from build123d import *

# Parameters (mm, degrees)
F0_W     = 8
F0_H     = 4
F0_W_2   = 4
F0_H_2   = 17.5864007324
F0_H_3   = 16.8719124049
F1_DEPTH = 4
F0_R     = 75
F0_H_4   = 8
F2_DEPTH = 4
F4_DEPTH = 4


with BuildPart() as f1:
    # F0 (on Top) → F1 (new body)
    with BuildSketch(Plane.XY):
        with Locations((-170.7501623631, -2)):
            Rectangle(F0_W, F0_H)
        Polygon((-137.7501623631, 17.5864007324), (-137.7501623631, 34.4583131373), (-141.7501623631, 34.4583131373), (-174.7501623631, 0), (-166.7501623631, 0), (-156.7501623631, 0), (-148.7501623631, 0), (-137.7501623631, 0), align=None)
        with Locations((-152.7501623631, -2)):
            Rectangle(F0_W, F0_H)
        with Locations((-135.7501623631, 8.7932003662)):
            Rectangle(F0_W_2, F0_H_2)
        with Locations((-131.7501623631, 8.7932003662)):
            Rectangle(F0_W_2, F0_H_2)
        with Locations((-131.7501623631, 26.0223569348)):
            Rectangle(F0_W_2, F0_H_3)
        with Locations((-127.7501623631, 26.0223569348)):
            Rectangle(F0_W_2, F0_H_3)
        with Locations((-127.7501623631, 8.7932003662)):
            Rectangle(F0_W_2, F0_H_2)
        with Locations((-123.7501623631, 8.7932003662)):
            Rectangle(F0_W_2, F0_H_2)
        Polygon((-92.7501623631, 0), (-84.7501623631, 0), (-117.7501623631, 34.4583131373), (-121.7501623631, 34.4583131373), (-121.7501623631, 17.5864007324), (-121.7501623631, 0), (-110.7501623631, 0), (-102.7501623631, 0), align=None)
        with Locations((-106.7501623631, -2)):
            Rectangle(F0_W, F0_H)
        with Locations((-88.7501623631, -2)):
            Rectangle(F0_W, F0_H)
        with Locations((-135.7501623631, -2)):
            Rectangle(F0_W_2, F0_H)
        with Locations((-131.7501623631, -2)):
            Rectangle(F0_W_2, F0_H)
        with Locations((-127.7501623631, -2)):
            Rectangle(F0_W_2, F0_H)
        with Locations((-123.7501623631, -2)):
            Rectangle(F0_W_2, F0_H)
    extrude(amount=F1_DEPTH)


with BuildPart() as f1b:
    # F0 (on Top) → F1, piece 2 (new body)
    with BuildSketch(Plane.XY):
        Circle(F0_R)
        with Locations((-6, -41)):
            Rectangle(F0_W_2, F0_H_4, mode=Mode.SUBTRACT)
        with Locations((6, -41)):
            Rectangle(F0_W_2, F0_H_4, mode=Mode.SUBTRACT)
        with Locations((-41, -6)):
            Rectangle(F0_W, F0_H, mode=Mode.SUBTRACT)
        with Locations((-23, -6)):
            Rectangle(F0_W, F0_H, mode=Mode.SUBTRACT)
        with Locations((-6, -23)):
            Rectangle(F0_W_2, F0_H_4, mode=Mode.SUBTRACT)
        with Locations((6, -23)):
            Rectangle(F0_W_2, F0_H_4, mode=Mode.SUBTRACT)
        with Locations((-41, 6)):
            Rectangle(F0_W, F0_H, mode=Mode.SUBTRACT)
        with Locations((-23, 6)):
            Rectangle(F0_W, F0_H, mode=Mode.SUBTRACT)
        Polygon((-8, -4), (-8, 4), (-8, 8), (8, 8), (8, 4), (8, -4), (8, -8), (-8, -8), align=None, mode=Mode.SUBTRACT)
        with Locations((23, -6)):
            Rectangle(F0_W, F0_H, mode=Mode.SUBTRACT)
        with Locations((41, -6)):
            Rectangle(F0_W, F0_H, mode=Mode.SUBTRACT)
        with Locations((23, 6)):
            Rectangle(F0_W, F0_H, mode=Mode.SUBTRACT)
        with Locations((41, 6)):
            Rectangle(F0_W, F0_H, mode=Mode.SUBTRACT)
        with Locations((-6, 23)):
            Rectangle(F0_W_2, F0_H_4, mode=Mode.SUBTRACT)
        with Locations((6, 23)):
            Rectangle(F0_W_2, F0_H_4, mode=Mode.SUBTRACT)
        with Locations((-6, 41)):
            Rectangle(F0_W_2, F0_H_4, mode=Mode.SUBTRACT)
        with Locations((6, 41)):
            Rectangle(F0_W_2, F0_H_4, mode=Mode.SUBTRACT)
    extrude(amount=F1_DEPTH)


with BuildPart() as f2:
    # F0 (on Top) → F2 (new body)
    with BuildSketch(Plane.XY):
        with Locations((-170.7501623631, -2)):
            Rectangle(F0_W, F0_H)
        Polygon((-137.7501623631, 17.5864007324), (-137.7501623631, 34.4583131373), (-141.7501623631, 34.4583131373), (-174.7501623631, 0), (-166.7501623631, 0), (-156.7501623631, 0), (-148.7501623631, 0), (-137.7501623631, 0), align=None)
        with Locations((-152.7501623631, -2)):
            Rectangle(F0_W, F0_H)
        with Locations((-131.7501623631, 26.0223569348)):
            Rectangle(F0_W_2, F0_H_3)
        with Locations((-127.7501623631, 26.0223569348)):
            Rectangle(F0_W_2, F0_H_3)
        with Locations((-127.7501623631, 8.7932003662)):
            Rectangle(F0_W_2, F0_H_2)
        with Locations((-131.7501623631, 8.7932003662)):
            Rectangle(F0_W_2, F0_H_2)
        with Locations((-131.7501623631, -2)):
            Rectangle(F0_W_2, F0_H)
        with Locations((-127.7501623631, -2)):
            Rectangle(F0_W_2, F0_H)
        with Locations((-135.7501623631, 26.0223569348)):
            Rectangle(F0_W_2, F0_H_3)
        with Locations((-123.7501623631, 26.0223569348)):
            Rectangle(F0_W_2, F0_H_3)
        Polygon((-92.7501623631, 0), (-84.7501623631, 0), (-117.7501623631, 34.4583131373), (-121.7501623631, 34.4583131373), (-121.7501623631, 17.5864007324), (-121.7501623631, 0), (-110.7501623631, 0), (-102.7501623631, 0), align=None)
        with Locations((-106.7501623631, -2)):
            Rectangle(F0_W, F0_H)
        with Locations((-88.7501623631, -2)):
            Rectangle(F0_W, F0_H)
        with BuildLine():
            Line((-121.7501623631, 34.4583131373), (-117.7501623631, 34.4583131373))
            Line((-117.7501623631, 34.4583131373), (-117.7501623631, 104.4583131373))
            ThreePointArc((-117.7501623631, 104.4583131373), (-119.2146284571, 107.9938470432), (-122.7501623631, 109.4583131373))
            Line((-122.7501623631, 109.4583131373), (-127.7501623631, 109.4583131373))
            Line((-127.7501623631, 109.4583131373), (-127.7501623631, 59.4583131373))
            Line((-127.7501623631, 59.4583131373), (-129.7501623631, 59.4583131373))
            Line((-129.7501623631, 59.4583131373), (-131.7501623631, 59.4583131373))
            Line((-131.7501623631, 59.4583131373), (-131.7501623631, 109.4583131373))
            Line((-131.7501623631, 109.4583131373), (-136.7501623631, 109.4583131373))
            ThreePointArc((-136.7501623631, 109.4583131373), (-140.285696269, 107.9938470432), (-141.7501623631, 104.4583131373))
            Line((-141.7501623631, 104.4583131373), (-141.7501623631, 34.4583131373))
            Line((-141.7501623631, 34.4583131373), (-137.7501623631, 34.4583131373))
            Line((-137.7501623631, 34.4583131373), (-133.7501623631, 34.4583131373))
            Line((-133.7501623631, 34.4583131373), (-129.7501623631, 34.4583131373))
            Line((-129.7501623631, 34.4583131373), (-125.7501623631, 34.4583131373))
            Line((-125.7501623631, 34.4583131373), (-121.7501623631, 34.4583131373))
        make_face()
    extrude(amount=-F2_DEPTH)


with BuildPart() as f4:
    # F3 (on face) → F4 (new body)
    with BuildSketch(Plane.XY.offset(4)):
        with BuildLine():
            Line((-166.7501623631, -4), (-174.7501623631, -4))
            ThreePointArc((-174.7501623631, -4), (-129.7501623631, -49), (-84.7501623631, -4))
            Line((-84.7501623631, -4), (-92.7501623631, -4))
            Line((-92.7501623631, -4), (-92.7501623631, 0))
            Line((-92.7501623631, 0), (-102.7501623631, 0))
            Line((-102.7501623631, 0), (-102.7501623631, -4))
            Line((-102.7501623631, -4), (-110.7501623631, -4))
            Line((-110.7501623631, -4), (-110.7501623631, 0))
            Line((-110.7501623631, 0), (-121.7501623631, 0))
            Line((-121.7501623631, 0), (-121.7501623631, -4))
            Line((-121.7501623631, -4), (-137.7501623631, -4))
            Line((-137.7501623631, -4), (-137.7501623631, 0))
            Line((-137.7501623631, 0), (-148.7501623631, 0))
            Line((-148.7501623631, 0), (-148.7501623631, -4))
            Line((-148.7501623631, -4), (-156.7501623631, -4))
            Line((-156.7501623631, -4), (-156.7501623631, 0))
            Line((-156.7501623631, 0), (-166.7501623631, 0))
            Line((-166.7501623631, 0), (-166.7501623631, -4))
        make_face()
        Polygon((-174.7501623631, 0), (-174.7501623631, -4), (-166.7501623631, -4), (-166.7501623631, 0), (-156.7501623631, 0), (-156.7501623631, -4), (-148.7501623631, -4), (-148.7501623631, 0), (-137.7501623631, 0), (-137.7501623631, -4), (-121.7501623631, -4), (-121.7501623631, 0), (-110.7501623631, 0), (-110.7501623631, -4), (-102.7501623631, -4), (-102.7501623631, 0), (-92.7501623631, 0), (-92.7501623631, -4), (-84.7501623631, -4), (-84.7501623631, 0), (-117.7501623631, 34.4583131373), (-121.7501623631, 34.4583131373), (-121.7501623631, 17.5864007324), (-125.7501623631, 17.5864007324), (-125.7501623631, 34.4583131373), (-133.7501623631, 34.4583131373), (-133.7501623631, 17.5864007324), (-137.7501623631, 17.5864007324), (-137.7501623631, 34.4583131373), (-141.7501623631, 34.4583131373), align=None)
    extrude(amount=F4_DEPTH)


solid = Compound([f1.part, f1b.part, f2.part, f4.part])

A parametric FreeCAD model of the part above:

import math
import FreeCAD as App
import Part
import Sketcher

V = App.Vector

doc = App.newDocument("Part")
body = doc.addObject("PartDesign::Body", "Body")

# Sketch on XY plane
sketch1 = body.newObject("Sketcher::SketchObject", "Sketch")
sketch1.AttachmentSupport = (doc.getObject("XY_Plane"), [""])
sketch1.MapMode = "FlatFace"
sketch1.addGeometry([
    Part.LineSegment(V(-174.8, 0, 0), V(-174.8, -4, 0)),  # 0
    Part.LineSegment(V(-174.8, -4, 0), V(-166.8, -4, 0)),  # 1
    Part.LineSegment(V(-166.8, -4, 0), V(-166.8, 0, 0)),  # 2
    Part.LineSegment(V(-166.8, 0, 0), V(-156.8, 0, 0)),  # 3
    Part.LineSegment(V(-156.8, 0, 0), V(-156.8, -4, 0)),  # 4
    Part.LineSegment(V(-156.8, -4, 0), V(-148.8, -4, 0)),  # 5
    Part.LineSegment(V(-148.8, -4, 0), V(-148.8, 0, 0)),  # 6
    Part.LineSegment(V(-148.8, 0, 0), V(-137.8, 0, 0)),  # 7
    Part.LineSegment(V(-137.8, 0, 0), V(-137.8, -4, 0)),  # 8
    Part.LineSegment(V(-137.8, -4, 0), V(-121.8, -4, 0)),  # 9
    Part.LineSegment(V(-121.8, -4, 0), V(-121.8, 0, 0)),  # 10
    Part.LineSegment(V(-121.8, 0, 0), V(-110.8, 0, 0)),  # 11
    Part.LineSegment(V(-110.8, 0, 0), V(-110.8, -4, 0)),  # 12
    Part.LineSegment(V(-110.8, -4, 0), V(-102.8, -4, 0)),  # 13
    Part.LineSegment(V(-102.8, -4, 0), V(-102.8, 0, 0)),  # 14
    Part.LineSegment(V(-102.8, 0, 0), V(-92.8, 0, 0)),  # 15
    Part.LineSegment(V(-92.8, 0, 0), V(-92.8, -4, 0)),  # 16
    Part.LineSegment(V(-92.8, -4, 0), V(-84.8, -4, 0)),  # 17
    Part.LineSegment(V(-84.8, -4, 0), V(-84.8, 0, 0)),  # 18
    Part.LineSegment(V(-84.8, 0, 0), V(-117.8, 34.5, 0)),  # 19
    Part.LineSegment(V(-117.8, 34.5, 0), V(-121.8, 34.5, 0)),  # 20
    Part.LineSegment(V(-121.8, 34.5, 0), V(-121.8, 17.6, 0)),  # 21
    Part.LineSegment(V(-121.8, 17.6, 0), V(-125.8, 17.6, 0)),  # 22
    Part.LineSegment(V(-125.8, 17.6, 0), V(-125.8, 34.5, 0)),  # 23
    Part.LineSegment(V(-125.8, 34.5, 0), V(-133.8, 34.5, 0)),  # 24
    Part.LineSegment(V(-133.8, 34.5, 0), V(-133.8, 17.6, 0)),  # 25
    Part.LineSegment(V(-133.8, 17.6, 0), V(-137.8, 17.6, 0)),  # 26
    Part.LineSegment(V(-137.8, 17.6, 0), V(-137.8, 34.5, 0)),  # 27
    Part.LineSegment(V(-137.8, 34.5, 0), V(-141.8, 34.5, 0)),  # 28
    Part.LineSegment(V(-141.8, 34.5, 0), V(-174.8, 0, 0)),  # 29
], False)
sketch1.addConstraint([
    Sketcher.Constraint("Coincident", 0, 2, 1, 1),
    Sketcher.Constraint("Coincident", 1, 2, 2, 1),
    Sketcher.Constraint("Coincident", 2, 2, 3, 1),
    Sketcher.Constraint("Coincident", 3, 2, 4, 1),
    Sketcher.Constraint("Coincident", 4, 2, 5, 1),
    Sketcher.Constraint("Coincident", 5, 2, 6, 1),
    Sketcher.Constraint("Coincident", 6, 2, 7, 1),
    Sketcher.Constraint("Coincident", 7, 2, 8, 1),
    Sketcher.Constraint("Coincident", 8, 2, 9, 1),
    Sketcher.Constraint("Coincident", 9, 2, 10, 1),
    Sketcher.Constraint("Coincident", 10, 2, 11, 1),
    Sketcher.Constraint("Coincident", 11, 2, 12, 1),
    Sketcher.Constraint("Coincident", 12, 2, 13, 1),
    Sketcher.Constraint("Coincident", 13, 2, 14, 1),
    Sketcher.Constraint("Coincident", 14, 2, 15, 1),
    Sketcher.Constraint("Coincident", 15, 2, 16, 1),
    Sketcher.Constraint("Coincident", 16, 2, 17, 1),
    Sketcher.Constraint("Coincident", 17, 2, 18, 1),
    Sketcher.Constraint("Coincident", 18, 2, 19, 1),
    Sketcher.Constraint("Coincident", 19, 2, 20, 1),
    Sketcher.Constraint("Coincident", 20, 2, 21, 1),
    Sketcher.Constraint("Coincident", 21, 2, 22, 1),
    Sketcher.Constraint("Coincident", 22, 2, 23, 1),
    Sketcher.Constraint("Coincident", 23, 2, 24, 1),
    Sketcher.Constraint("Coincident", 24, 2, 25, 1),
    Sketcher.Constraint("Coincident", 25, 2, 26, 1),
    Sketcher.Constraint("Coincident", 26, 2, 27, 1),
    Sketcher.Constraint("Coincident", 27, 2, 28, 1),
    Sketcher.Constraint("Coincident", 28, 2, 29, 1),
    Sketcher.Constraint("Coincident", 29, 2, 0, 1),
    Sketcher.Constraint("Vertical", 0),
    Sketcher.Constraint("Horizontal", 1),
    Sketcher.Constraint("Vertical", 2),
    Sketcher.Constraint("Horizontal", 3),
    Sketcher.Constraint("Vertical", 4),
    Sketcher.Constraint("Horizontal", 5),
    Sketcher.Constraint("Vertical", 6),
    Sketcher.Constraint("Horizontal", 7),
    Sketcher.Constraint("Vertical", 8),
    Sketcher.Constraint("Horizontal", 9),
    Sketcher.Constraint("Vertical", 10),
    Sketcher.Constraint("Horizontal", 11),
    Sketcher.Constraint("Vertical", 12),
    Sketcher.Constraint("Horizontal", 13),
    Sketcher.Constraint("Vertical", 14),
    Sketcher.Constraint("Horizontal", 15),
    Sketcher.Constraint("Vertical", 16),
    Sketcher.Constraint("Horizontal", 17),
    Sketcher.Constraint("Vertical", 18),
    Sketcher.Constraint("Horizontal", 20),
    Sketcher.Constraint("Vertical", 21),
    Sketcher.Constraint("Horizontal", 22),
    Sketcher.Constraint("Vertical", 23),
    Sketcher.Constraint("Horizontal", 24),
    Sketcher.Constraint("Vertical", 25),
    Sketcher.Constraint("Horizontal", 26),
    Sketcher.Constraint("Vertical", 27),
    Sketcher.Constraint("Horizontal", 28),
    Sketcher.Constraint("PointOnObject", 2, 2, -1),
    Sketcher.Constraint("PointOnObject", 6, 2, -1),
    Sketcher.Constraint("PointOnObject", 10, 2, -1),
    Sketcher.Constraint("PointOnObject", 14, 2, -1),
    Sketcher.Constraint("PointOnObject", 18, 2, -1),
    Sketcher.Constraint("PointOnObject", 29, 2, -1),
    Sketcher.Constraint("Horizontal", 1, 2, 4, 2),
    Sketcher.Constraint("Horizontal", 5, 2, 8, 2),
    Sketcher.Constraint("Horizontal", 9, 2, 12, 2),
    Sketcher.Constraint("Horizontal", 13, 2, 16, 2),
    Sketcher.Constraint("Horizontal", 20, 2, 23, 2),
    Sketcher.Constraint("Horizontal", 22, 2, 25, 2),
    Sketcher.Constraint("Horizontal", 24, 2, 27, 2),
    Sketcher.Constraint("Vertical", 10, 2, 20, 2),
    Sketcher.Constraint("Vertical", 8, 2, 26, 2),
    Sketcher.Constraint("Equal", 1, 5),
    Sketcher.Constraint("Equal", 7, 11),
    Sketcher.Constraint("Equal", 5, 13),
    Sketcher.Constraint("Equal", 3, 15),
    Sketcher.Constraint("Equal", 13, 17),
    Sketcher.Constraint("Equal", 20, 22),
    Sketcher.Constraint("Equal", 17, 24),
    Sketcher.Constraint("Equal", 22, 26),
    Sketcher.Constraint("Equal", 26, 28),
    Sketcher.Constraint("Equal", 28, 0),
    Sketcher.Constraint("DistanceX", 1, 1, 1, 2, 8.0),
    Sketcher.Constraint("DistanceX", 3, 1, 3, 2, 10.0),
    Sketcher.Constraint("DistanceX", 7, 1, 7, 2, 11.0),
    Sketcher.Constraint("DistanceX", 9, 1, 9, 2, 16.0),
    Sketcher.Constraint("DistanceY", -1, 1, 21, 2, 17.586401),
    Sketcher.Constraint("DistanceY", 21, 2, 21, 1, 16.871912),
    Sketcher.Constraint("DistanceX", 0, 2, -1, 1, 174.750162),
])
pad1 = body.newObject("PartDesign::Pad", "Pad")
pad1.Profile = sketch1
pad1.Length = 4
body2 = doc.addObject("PartDesign::Body", "Body001")

# Sketch on XY plane
sketch2 = body2.newObject("Sketcher::SketchObject", "Sketch001")
sketch2.AttachmentSupport = (doc.getObject("XY_Plane001"), [""])
sketch2.MapMode = "FlatFace"
sketch2.addGeometry([
    Part.Circle(V(0, 0, 0), V(0, 0, 1), 75),  # 0
    Part.LineSegment(V(-4, -45, 0), V(-8, -45, 0)),  # 1
    Part.LineSegment(V(-8, -45, 0), V(-8, -37, 0)),  # 2
    Part.LineSegment(V(-8, -37, 0), V(-4, -37, 0)),  # 3
    Part.LineSegment(V(-4, -37, 0), V(-4, -45, 0)),  # 4
    Part.LineSegment(V(-4, -27, 0), V(-8, -27, 0)),  # 5
    Part.LineSegment(V(-8, -27, 0), V(-8, -19, 0)),  # 6
    Part.LineSegment(V(-8, -19, 0), V(-4, -19, 0)),  # 7
    Part.LineSegment(V(-4, -19, 0), V(-4, -27, 0)),  # 8
    Part.LineSegment(V(-37, -8, 0), V(-45, -8, 0)),  # 9
    Part.LineSegment(V(-45, -8, 0), V(-45, -4, 0)),  # 10
    Part.LineSegment(V(-45, -4, 0), V(-37, -4, 0)),  # 11
    Part.LineSegment(V(-37, -4, 0), V(-37, -8, 0)),  # 12
    Part.LineSegment(V(-19, -8, 0), V(-27, -8, 0)),  # 13
    Part.LineSegment(V(-27, -8, 0), V(-27, -4, 0)),  # 14
    Part.LineSegment(V(-27, -4, 0), V(-19, -4, 0)),  # 15
    Part.LineSegment(V(-19, -4, 0), V(-19, -8, 0)),  # 16
    Part.LineSegment(V(8, -45, 0), V(4, -45, 0)),  # 17
    Part.LineSegment(V(4, -45, 0), V(4, -37, 0)),  # 18
    Part.LineSegment(V(4, -37, 0), V(8, -37, 0)),  # 19
    Part.LineSegment(V(8, -37, 0), V(8, -45, 0)),  # 20
    Part.LineSegment(V(8, -27, 0), V(4, -27, 0)),  # 21
    Part.LineSegment(V(4, -27, 0), V(4, -19, 0)),  # 22
    Part.LineSegment(V(4, -19, 0), V(8, -19, 0)),  # 23
    Part.LineSegment(V(8, -19, 0), V(8, -27, 0)),  # 24
    Part.LineSegment(V(27, -8, 0), V(19, -8, 0)),  # 25
    Part.LineSegment(V(19, -8, 0), V(19, -4, 0)),  # 26
    Part.LineSegment(V(19, -4, 0), V(27, -4, 0)),  # 27
    Part.LineSegment(V(27, -4, 0), V(27, -8, 0)),  # 28
    Part.LineSegment(V(45, -8, 0), V(37, -8, 0)),  # 29
    Part.LineSegment(V(37, -8, 0), V(37, -4, 0)),  # 30
    Part.LineSegment(V(37, -4, 0), V(45, -4, 0)),  # 31
    Part.LineSegment(V(45, -4, 0), V(45, -8, 0)),  # 32
    Part.LineSegment(V(-37, 4, 0), V(-45, 4, 0)),  # 33
    Part.LineSegment(V(-45, 4, 0), V(-45, 8, 0)),  # 34
    Part.LineSegment(V(-45, 8, 0), V(-37, 8, 0)),  # 35
    Part.LineSegment(V(-37, 8, 0), V(-37, 4, 0)),  # 36
    Part.LineSegment(V(-19, 4, 0), V(-27, 4, 0)),  # 37
    Part.LineSegment(V(-27, 4, 0), V(-27, 8, 0)),  # 38
    Part.LineSegment(V(-27, 8, 0), V(-19, 8, 0)),  # 39
    Part.LineSegment(V(-19, 8, 0), V(-19, 4, 0)),  # 40
    Part.LineSegment(V(-4, 19, 0), V(-8, 19, 0)),  # 41
    Part.LineSegment(V(-8, 19, 0), V(-8, 27, 0)),  # 42
    Part.LineSegment(V(-8, 27, 0), V(-4, 27, 0)),  # 43
    Part.LineSegment(V(-4, 27, 0), V(-4, 19, 0)),  # 44
    Part.LineSegment(V(-4, 37, 0), V(-8, 37, 0)),  # 45
    Part.LineSegment(V(-8, 37, 0), V(-8, 45, 0)),  # 46
    Part.LineSegment(V(-8, 45, 0), V(-4, 45, 0)),  # 47
    Part.LineSegment(V(-4, 45, 0), V(-4, 37, 0)),  # 48
    Part.LineSegment(V(-8, -8, 0), V(-8, 8, 0)),  # 49
    Part.LineSegment(V(-8, 8, 0), V(8, 8, 0)),  # 50
    Part.LineSegment(V(8, 8, 0), V(8, -8, 0)),  # 51
    Part.LineSegment(V(8, -8, 0), V(-8, -8, 0)),  # 52
    Part.LineSegment(V(27, 4, 0), V(19, 4, 0)),  # 53
    Part.LineSegment(V(19, 4, 0), V(19, 8, 0)),  # 54
    Part.LineSegment(V(19, 8, 0), V(27, 8, 0)),  # 55
    Part.LineSegment(V(27, 8, 0), V(27, 4, 0)),  # 56
    Part.LineSegment(V(45, 4, 0), V(37, 4, 0)),  # 57
    Part.LineSegment(V(37, 4, 0), V(37, 8, 0)),  # 58
    Part.LineSegment(V(37, 8, 0), V(45, 8, 0)),  # 59
    Part.LineSegment(V(45, 8, 0), V(45, 4, 0)),  # 60
    Part.LineSegment(V(8, 19, 0), V(4, 19, 0)),  # 61
    Part.LineSegment(V(4, 19, 0), V(4, 27, 0)),  # 62
    Part.LineSegment(V(4, 27, 0), V(8, 27, 0)),  # 63
    Part.LineSegment(V(8, 27, 0), V(8, 19, 0)),  # 64
    Part.LineSegment(V(8, 37, 0), V(4, 37, 0)),  # 65
    Part.LineSegment(V(4, 37, 0), V(4, 45, 0)),  # 66
    Part.LineSegment(V(4, 45, 0), V(8, 45, 0)),  # 67
    Part.LineSegment(V(8, 45, 0), V(8, 37, 0)),  # 68
], False)
sketch2.addConstraint([
    Sketcher.Constraint("Coincident", 1, 2, 2, 1),
    Sketcher.Constraint("Coincident", 2, 2, 3, 1),
    Sketcher.Constraint("Coincident", 3, 2, 4, 1),
    Sketcher.Constraint("Coincident", 4, 2, 1, 1),
    Sketcher.Constraint("Coincident", 5, 2, 6, 1),
    Sketcher.Constraint("Coincident", 6, 2, 7, 1),
    Sketcher.Constraint("Coincident", 7, 2, 8, 1),
    Sketcher.Constraint("Coincident", 8, 2, 5, 1),
    Sketcher.Constraint("Coincident", 9, 2, 10, 1),
    Sketcher.Constraint("Coincident", 10, 2, 11, 1),
    Sketcher.Constraint("Coincident", 11, 2, 12, 1),
    Sketcher.Constraint("Coincident", 12, 2, 9, 1),
    Sketcher.Constraint("Coincident", 13, 2, 14, 1),
    Sketcher.Constraint("Coincident", 14, 2, 15, 1),
    Sketcher.Constraint("Coincident", 15, 2, 16, 1),
    Sketcher.Constraint("Coincident", 16, 2, 13, 1),
    Sketcher.Constraint("Coincident", 17, 2, 18, 1),
    Sketcher.Constraint("Coincident", 18, 2, 19, 1),
    Sketcher.Constraint("Coincident", 19, 2, 20, 1),
    Sketcher.Constraint("Coincident", 20, 2, 17, 1),
    Sketcher.Constraint("Coincident", 21, 2, 22, 1),
    Sketcher.Constraint("Coincident", 22, 2, 23, 1),
    Sketcher.Constraint("Coincident", 23, 2, 24, 1),
    Sketcher.Constraint("Coincident", 24, 2, 21, 1),
    Sketcher.Constraint("Coincident", 25, 2, 26, 1),
    Sketcher.Constraint("Coincident", 26, 2, 27, 1),
    Sketcher.Constraint("Coincident", 27, 2, 28, 1),
    Sketcher.Constraint("Coincident", 28, 2, 25, 1),
    Sketcher.Constraint("Coincident", 29, 2, 30, 1),
    Sketcher.Constraint("Coincident", 30, 2, 31, 1),
    Sketcher.Constraint("Coincident", 31, 2, 32, 1),
    Sketcher.Constraint("Coincident", 32, 2, 29, 1),
    Sketcher.Constraint("Coincident", 33, 2, 34, 1),
    Sketcher.Constraint("Coincident", 34, 2, 35, 1),
    Sketcher.Constraint("Coincident", 35, 2, 36, 1),
    Sketcher.Constraint("Coincident", 36, 2, 33, 1),
    Sketcher.Constraint("Coincident", 37, 2, 38, 1),
    Sketcher.Constraint("Coincident", 38, 2, 39, 1),
    Sketcher.Constraint("Coincident", 39, 2, 40, 1),
    Sketcher.Constraint("Coincident", 40, 2, 37, 1),
    Sketcher.Constraint("Coincident", 41, 2, 42, 1),
    Sketcher.Constraint("Coincident", 42, 2, 43, 1),
    Sketcher.Constraint("Coincident", 43, 2, 44, 1),
    Sketcher.Constraint("Coincident", 44, 2, 41, 1),
    Sketcher.Constraint("Coincident", 45, 2, 46, 1),
    Sketcher.Constraint("Coincident", 46, 2, 47, 1),
    Sketcher.Constraint("Coincident", 47, 2, 48, 1),
    Sketcher.Constraint("Coincident", 48, 2, 45, 1),
    Sketcher.Constraint("Coincident", 49, 2, 50, 1),
    Sketcher.Constraint("Coincident", 50, 2, 51, 1),
    Sketcher.Constraint("Coincident", 51, 2, 52, 1),
    Sketcher.Constraint("Coincident", 52, 2, 49, 1),
    Sketcher.Constraint("Coincident", 53, 2, 54, 1),
    Sketcher.Constraint("Coincident", 54, 2, 55, 1),
    Sketcher.Constraint("Coincident", 55, 2, 56, 1),
    Sketcher.Constraint("Coincident", 56, 2, 53, 1),
    Sketcher.Constraint("Coincident", 57, 2, 58, 1),
    Sketcher.Constraint("Coincident", 58, 2, 59, 1),
    Sketcher.Constraint("Coincident", 59, 2, 60, 1),
    Sketcher.Constraint("Coincident", 60, 2, 57, 1),
    Sketcher.Constraint("Coincident", 61, 2, 62, 1),
    Sketcher.Constraint("Coincident", 62, 2, 63, 1),
    Sketcher.Constraint("Coincident", 63, 2, 64, 1),
    Sketcher.Constraint("Coincident", 64, 2, 61, 1),
    Sketcher.Constraint("Coincident", 65, 2, 66, 1),
    Sketcher.Constraint("Coincident", 66, 2, 67, 1),
    Sketcher.Constraint("Coincident", 67, 2, 68, 1),
    Sketcher.Constraint("Coincident", 68, 2, 65, 1),
    Sketcher.Constraint("Horizontal", 1),
    Sketcher.Constraint("Vertical", 2),
    Sketcher.Constraint("Horizontal", 3),
    Sketcher.Constraint("Vertical", 4),
    Sketcher.Constraint("Horizontal", 5),
    Sketcher.Constraint("Vertical", 6),
    Sketcher.Constraint("Horizontal", 7),
    Sketcher.Constraint("Vertical", 8),
    Sketcher.Constraint("Horizontal", 9),
    Sketcher.Constraint("Vertical", 10),
    Sketcher.Constraint("Horizontal", 11),
    Sketcher.Constraint("Vertical", 12),
    Sketcher.Constraint("Horizontal", 13),
    Sketcher.Constraint("Vertical", 14),
    Sketcher.Constraint("Horizontal", 15),
    Sketcher.Constraint("Vertical", 16),
    Sketcher.Constraint("Horizontal", 17),
    Sketcher.Constraint("Vertical", 18),
    Sketcher.Constraint("Horizontal", 19),
    Sketcher.Constraint("Vertical", 20),
    Sketcher.Constraint("Horizontal", 21),
    Sketcher.Constraint("Vertical", 22),
    Sketcher.Constraint("Horizontal", 23),
    Sketcher.Constraint("Vertical", 24),
    Sketcher.Constraint("Horizontal", 25),
    Sketcher.Constraint("Vertical", 26),
    Sketcher.Constraint("Horizontal", 27),
    Sketcher.Constraint("Vertical", 28),
    Sketcher.Constraint("Horizontal", 29),
    Sketcher.Constraint("Vertical", 30),
    Sketcher.Constraint("Horizontal", 31),
    Sketcher.Constraint("Vertical", 32),
    Sketcher.Constraint("Horizontal", 33),
    Sketcher.Constraint("Vertical", 34),
    Sketcher.Constraint("Horizontal", 35),
    Sketcher.Constraint("Vertical", 36),
    Sketcher.Constraint("Horizontal", 37),
    Sketcher.Constraint("Vertical", 38),
    Sketcher.Constraint("Horizontal", 39),
    Sketcher.Constraint("Vertical", 40),
    Sketcher.Constraint("Horizontal", 41),
    Sketcher.Constraint("Vertical", 42),
    Sketcher.Constraint("Horizontal", 43),
    Sketcher.Constraint("Vertical", 44),
    Sketcher.Constraint("Horizontal", 45),
    Sketcher.Constraint("Vertical", 46),
    Sketcher.Constraint("Horizontal", 47),
    Sketcher.Constraint("Vertical", 48),
    Sketcher.Constraint("Vertical", 49),
    Sketcher.Constraint("Horizontal", 50),
    Sketcher.Constraint("Vertical", 51),
    Sketcher.Constraint("Horizontal", 52),
    Sketcher.Constraint("Horizontal", 53),
    Sketcher.Constraint("Vertical", 54),
    Sketcher.Constraint("Horizontal", 55),
    Sketcher.Constraint("Vertical", 56),
    Sketcher.Constraint("Horizontal", 57),
    Sketcher.Constraint("Vertical", 58),
    Sketcher.Constraint("Horizontal", 59),
    Sketcher.Constraint("Vertical", 60),
    Sketcher.Constraint("Horizontal", 61),
    Sketcher.Constraint("Vertical", 62),
    Sketcher.Constraint("Horizontal", 63),
    Sketcher.Constraint("Vertical", 64),
    Sketcher.Constraint("Horizontal", 65),
    Sketcher.Constraint("Vertical", 66),
    Sketcher.Constraint("Horizontal", 67),
    Sketcher.Constraint("Vertical", 68),
    Sketcher.Constraint("Coincident", 0, 3, -1, 1),
    Sketcher.Constraint("Symmetric", 31, 2, 33, 2, -1, 1),
    Sketcher.Constraint("Symmetric", 29, 2, 35, 2, -1, 1),
    Sketcher.Constraint("Symmetric", 27, 2, 37, 2, -1, 1),
    Sketcher.Constraint("Symmetric", 25, 2, 39, 2, -1, 1),
    Sketcher.Constraint("Symmetric", 23, 2, 41, 2, -1, 1),
    Sketcher.Constraint("Symmetric", 21, 2, 43, 2, -1, 1),
    Sketcher.Constraint("Symmetric", 19, 2, 45, 2, -1, 1),
    Sketcher.Constraint("Symmetric", 17, 2, 47, 2, -1, 1),
    Sketcher.Constraint("Symmetric", 49, 2, 51, 2, -1, 1),
    Sketcher.Constraint("Symmetric", 15, 2, 53, 2, -1, 1),
    Sketcher.Constraint("Symmetric", 13, 2, 55, 2, -1, 1),
    Sketcher.Constraint("Symmetric", 11, 2, 57, 2, -1, 1),
    Sketcher.Constraint("Symmetric", 9, 2, 59, 2, -1, 1),
    Sketcher.Constraint("Symmetric", 7, 2, 61, 2, -1, 1),
    Sketcher.Constraint("Symmetric", 5, 2, 63, 2, -1, 1),
    Sketcher.Constraint("Symmetric", 3, 2, 65, 2, -1, 1),
    Sketcher.Constraint("Symmetric", 1, 2, 67, 2, -1, 1),
    Sketcher.Constraint("Symmetric", 4, 2, 17, 2, -2),
    Sketcher.Constraint("Symmetric", 2, 2, 19, 2, -2),
    Sketcher.Constraint("Symmetric", 8, 2, 21, 2, -2),
    Sketcher.Constraint("Symmetric", 6, 2, 23, 2, -2),
    Sketcher.Constraint("Symmetric", 16, 2, 25, 2, -2),
    Sketcher.Constraint("Symmetric", 14, 2, 27, 2, -2),
    Sketcher.Constraint("Symmetric", 12, 2, 29, 2, -2),
    Sketcher.Constraint("Symmetric", 10, 2, 31, 2, -2),
    Sketcher.Constraint("Horizontal", 12, 2, 13, 2),
    Sketcher.Constraint("Horizontal", 11, 2, 14, 2),
    Sketcher.Constraint("Horizontal", 39, 2, 49, 2),
    Sketcher.Constraint("Vertical", 2, 2, 5, 2),
    Sketcher.Constraint("Vertical", 4, 2, 7, 2),
    Sketcher.Constraint("Vertical", 46, 2, 49, 2),
    Sketcher.Constraint("Equal", 11, 13),
    Sketcher.Constraint("Equal", 59, 2),
    Sketcher.Constraint("Equal", 4, 6),
    Sketcher.Constraint("Equal", 67, 10),
    Sketcher.Constraint("Equal", 52, 49),
    Sketcher.Constraint("Diameter", 0, 150.0),
    Sketcher.Constraint("DistanceX", 1, 2, 1, 1, 4.0),
    Sketcher.Constraint("DistanceX", 9, 2, 9, 1, 8.0),
    Sketcher.Constraint("DistanceX", 50, 1, 50, 2, 16.0),
    Sketcher.Constraint("DistanceY", 1, 2, -1, 1, 45.0),
    Sketcher.Constraint("DistanceY", 5, 2, -1, 1, 27.0),
    Sketcher.Constraint("DistanceX", 9, 2, -1, 1, 45.0),
    Sketcher.Constraint("DistanceX", 13, 2, -1, 1, 27.0),
])
pad2 = body2.newObject("PartDesign::Pad", "Pad001")
pad2.Profile = sketch2
pad2.Length = 4
body3 = doc.addObject("PartDesign::Body", "Body002")

# Sketch on XY plane
sketch3 = body3.newObject("Sketcher::SketchObject", "Sketch002")
sketch3.AttachmentSupport = (doc.getObject("XY_Plane002"), [""])
sketch3.MapMode = "FlatFace"
sketch3.addGeometry([
    Part.LineSegment(V(-174.8, 0, 0), V(-174.8, -4, 0)),  # 0
    Part.LineSegment(V(-174.8, -4, 0), V(-166.8, -4, 0)),  # 1
    Part.LineSegment(V(-166.8, -4, 0), V(-166.8, 0, 0)),  # 2
    Part.LineSegment(V(-166.8, 0, 0), V(-156.8, 0, 0)),  # 3
    Part.LineSegment(V(-156.8, 0, 0), V(-156.8, -4, 0)),  # 4
    Part.LineSegment(V(-156.8, -4, 0), V(-148.8, -4, 0)),  # 5
    Part.LineSegment(V(-148.8, -4, 0), V(-148.8, 0, 0)),  # 6
    Part.LineSegment(V(-148.8, 0, 0), V(-137.8, 0, 0)),  # 7
    Part.LineSegment(V(-137.8, 0, 0), V(-137.8, 17.6, 0)),  # 8
    Part.LineSegment(V(-137.8, 17.6, 0), V(-133.8, 17.6, 0)),  # 9
    Part.LineSegment(V(-133.8, 17.6, 0), V(-133.8, -4, 0)),  # 10
    Part.LineSegment(V(-133.8, -4, 0), V(-125.8, -4, 0)),  # 11
    Part.LineSegment(V(-125.8, -4, 0), V(-125.8, 17.6, 0)),  # 12
    Part.LineSegment(V(-125.8, 17.6, 0), V(-121.8, 17.6, 0)),  # 13
    Part.LineSegment(V(-121.8, 17.6, 0), V(-121.8, 0, 0)),  # 14
    Part.LineSegment(V(-121.8, 0, 0), V(-110.8, 0, 0)),  # 15
    Part.LineSegment(V(-110.8, 0, 0), V(-110.8, -4, 0)),  # 16
    Part.LineSegment(V(-110.8, -4, 0), V(-102.8, -4, 0)),  # 17
    Part.LineSegment(V(-102.8, -4, 0), V(-102.8, 0, 0)),  # 18
    Part.LineSegment(V(-102.8, 0, 0), V(-92.8, 0, 0)),  # 19
    Part.LineSegment(V(-92.8, 0, 0), V(-92.8, -4, 0)),  # 20
    Part.LineSegment(V(-92.8, -4, 0), V(-84.8, -4, 0)),  # 21
    Part.LineSegment(V(-84.8, -4, 0), V(-84.8, 0, 0)),  # 22
    Part.LineSegment(V(-84.8, 0, 0), V(-117.8, 34.5, 0)),  # 23
    Part.LineSegment(V(-117.8, 34.5, 0), V(-117.8, 104.5, 0)),  # 24
    Part.ArcOfCircle(Part.Circle(V(-122.8, 104.5, 0), V(0, 0, 1), 5), math.radians(0), math.radians(90)),  # 25
    Part.LineSegment(V(-122.8, 109.5, 0), V(-127.8, 109.5, 0)),  # 26
    Part.LineSegment(V(-127.8, 109.5, 0), V(-127.8, 59.5, 0)),  # 27
    Part.LineSegment(V(-127.8, 59.5, 0), V(-131.8, 59.5, 0)),  # 28
    Part.LineSegment(V(-131.8, 59.5, 0), V(-131.8, 109.5, 0)),  # 29
    Part.LineSegment(V(-131.8, 109.5, 0), V(-136.8, 109.5, 0)),  # 30
    Part.ArcOfCircle(Part.Circle(V(-136.8, 104.5, 0), V(0, 0, 1), 5), math.radians(90), math.radians(180)),  # 31
    Part.LineSegment(V(-141.8, 104.5, 0), V(-141.8, 34.5, 0)),  # 32
    Part.LineSegment(V(-141.8, 34.5, 0), V(-174.8, 0, 0)),  # 33
], False)
sketch3.addConstraint([
    Sketcher.Constraint("Coincident", 0, 2, 1, 1),
    Sketcher.Constraint("Coincident", 1, 2, 2, 1),
    Sketcher.Constraint("Coincident", 2, 2, 3, 1),
    Sketcher.Constraint("Coincident", 3, 2, 4, 1),
    Sketcher.Constraint("Coincident", 4, 2, 5, 1),
    Sketcher.Constraint("Coincident", 5, 2, 6, 1),
    Sketcher.Constraint("Coincident", 6, 2, 7, 1),
    Sketcher.Constraint("Coincident", 7, 2, 8, 1),
    Sketcher.Constraint("Coincident", 8, 2, 9, 1),
    Sketcher.Constraint("Coincident", 9, 2, 10, 1),
    Sketcher.Constraint("Coincident", 10, 2, 11, 1),
    Sketcher.Constraint("Coincident", 11, 2, 12, 1),
    Sketcher.Constraint("Coincident", 12, 2, 13, 1),
    Sketcher.Constraint("Coincident", 13, 2, 14, 1),
    Sketcher.Constraint("Coincident", 14, 2, 15, 1),
    Sketcher.Constraint("Coincident", 15, 2, 16, 1),
    Sketcher.Constraint("Coincident", 16, 2, 17, 1),
    Sketcher.Constraint("Coincident", 17, 2, 18, 1),
    Sketcher.Constraint("Coincident", 18, 2, 19, 1),
    Sketcher.Constraint("Coincident", 19, 2, 20, 1),
    Sketcher.Constraint("Coincident", 20, 2, 21, 1),
    Sketcher.Constraint("Coincident", 21, 2, 22, 1),
    Sketcher.Constraint("Coincident", 22, 2, 23, 1),
    Sketcher.Constraint("Coincident", 23, 2, 24, 1),
    Sketcher.Constraint("Tangent", 24, 2, 25, 1),
    Sketcher.Constraint("Tangent", 25, 2, 26, 1),
    Sketcher.Constraint("Coincident", 26, 2, 27, 1),
    Sketcher.Constraint("Coincident", 27, 2, 28, 1),
    Sketcher.Constraint("Coincident", 28, 2, 29, 1),
    Sketcher.Constraint("Coincident", 29, 2, 30, 1),
    Sketcher.Constraint("Tangent", 30, 2, 31, 1),
    Sketcher.Constraint("Tangent", 31, 2, 32, 1),
    Sketcher.Constraint("Coincident", 32, 2, 33, 1),
    Sketcher.Constraint("Coincident", 33, 2, 0, 1),
    Sketcher.Constraint("Vertical", 0),
    Sketcher.Constraint("Horizontal", 1),
    Sketcher.Constraint("Vertical", 2),
    Sketcher.Constraint("Horizontal", 3),
    Sketcher.Constraint("Vertical", 4),
    Sketcher.Constraint("Horizontal", 5),
    Sketcher.Constraint("Vertical", 6),
    Sketcher.Constraint("Horizontal", 7),
    Sketcher.Constraint("Vertical", 8),
    Sketcher.Constraint("Horizontal", 9),
    Sketcher.Constraint("Vertical", 10),
    Sketcher.Constraint("Horizontal", 11),
    Sketcher.Constraint("Vertical", 12),
    Sketcher.Constraint("Horizontal", 13),
    Sketcher.Constraint("Vertical", 14),
    Sketcher.Constraint("Horizontal", 15),
    Sketcher.Constraint("Vertical", 16),
    Sketcher.Constraint("Horizontal", 17),
    Sketcher.Constraint("Vertical", 18),
    Sketcher.Constraint("Horizontal", 19),
    Sketcher.Constraint("Vertical", 20),
    Sketcher.Constraint("Horizontal", 21),
    Sketcher.Constraint("Vertical", 22),
    Sketcher.Constraint("Vertical", 24),
    Sketcher.Constraint("Horizontal", 26),
    Sketcher.Constraint("Vertical", 27),
    Sketcher.Constraint("Horizontal", 28),
    Sketcher.Constraint("Vertical", 29),
    Sketcher.Constraint("Horizontal", 30),
    Sketcher.Constraint("Vertical", 32),
    Sketcher.Constraint("Equal", 25, 31),
    Sketcher.Constraint("PointOnObject", 2, 2, -1),
    Sketcher.Constraint("PointOnObject", 6, 2, -1),
    Sketcher.Constraint("PointOnObject", 14, 2, -1),
    Sketcher.Constraint("PointOnObject", 18, 2, -1),
    Sketcher.Constraint("PointOnObject", 22, 2, -1),
    Sketcher.Constraint("PointOnObject", 33, 2, -1),
    Sketcher.Constraint("Horizontal", 25, 3, 31, 3),
    Sketcher.Constraint("Horizontal", 1, 2, 4, 2),
    Sketcher.Constraint("Horizontal", 5, 2, 10, 2),
    Sketcher.Constraint("Horizontal", 9, 2, 12, 2),
    Sketcher.Constraint("Horizontal", 11, 2, 16, 2),
    Sketcher.Constraint("Horizontal", 17, 2, 20, 2),
    Sketcher.Constraint("Horizontal", 23, 2, 32, 2),
    Sketcher.Constraint("Equal", 1, 5),
    Sketcher.Constraint("Equal", 5, 11),
    Sketcher.Constraint("Equal", 9, 13),
    Sketcher.Constraint("Equal", 7, 15),
    Sketcher.Constraint("Equal", 11, 17),
    Sketcher.Constraint("Equal", 3, 19),
    Sketcher.Constraint("Equal", 17, 21),
    Sketcher.Constraint("Equal", 13, 28),
    Sketcher.Constraint("Equal", 26, 30),
    Sketcher.Constraint("Equal", 28, 0),
    Sketcher.Constraint("Equal", 23, 33),
    Sketcher.Constraint("Radius", 25, 5.0),
    Sketcher.Constraint("DistanceX", 1, 1, 1, 2, 8.0),
    Sketcher.Constraint("DistanceX", 3, 1, 3, 2, 10.0),
    Sketcher.Constraint("DistanceX", 7, 1, 7, 2, 11.0),
    Sketcher.Constraint("DistanceX", 9, 1, 9, 2, 4.0),
    Sketcher.Constraint("DistanceX", 26, 2, 26, 1, 5.0),
    Sketcher.Constraint("DistanceY", 24, 1, 24, 2, 70.0),
    Sketcher.Constraint("DistanceY", 27, 2, 27, 1, 50.0),
    Sketcher.Constraint("DistanceY", 8, 1, 8, 2, 17.586401),
    Sketcher.Constraint("Distance", 23, 47.711375),
    Sketcher.Constraint("DistanceX", 25, 3, -1, 1, 122.750162),
])
pad3 = body3.newObject("PartDesign::Pad", "Pad002")
pad3.Profile = sketch3
pad3.Length = 4
pad3.Reversed = True
body4 = doc.addObject("PartDesign::Body", "Body003")

# Sketch on XY plane
sketch4 = body4.newObject("Sketcher::SketchObject", "Sketch003")
sketch4.AttachmentSupport = (doc.getObject("XY_Plane003"), [""])
sketch4.MapMode = "FlatFace"
sketch4.AttachmentOffset = App.Placement(V(0, 0, 4), App.Rotation())
sketch4.addGeometry([
    Part.ArcOfCircle(Part.Circle(V(-129.8, -4, 0), V(0, 0, 1), 45), math.radians(180), math.radians(360)),  # 0
    Part.LineSegment(V(-84.8, -4, 0), V(-84.8, 0, 0)),  # 1
    Part.LineSegment(V(-84.8, 0, 0), V(-117.8, 34.5, 0)),  # 2
    Part.LineSegment(V(-117.8, 34.5, 0), V(-121.8, 34.5, 0)),  # 3
    Part.LineSegment(V(-121.8, 34.5, 0), V(-121.8, 17.6, 0)),  # 4
    Part.LineSegment(V(-121.8, 17.6, 0), V(-125.8, 17.6, 0)),  # 5
    Part.LineSegment(V(-125.8, 17.6, 0), V(-125.8, 34.5, 0)),  # 6
    Part.LineSegment(V(-125.8, 34.5, 0), V(-133.8, 34.5, 0)),  # 7
    Part.LineSegment(V(-133.8, 34.5, 0), V(-133.8, 17.6, 0)),  # 8
    Part.LineSegment(V(-133.8, 17.6, 0), V(-137.8, 17.6, 0)),  # 9
    Part.LineSegment(V(-137.8, 17.6, 0), V(-137.8, 34.5, 0)),  # 10
    Part.LineSegment(V(-137.8, 34.5, 0), V(-141.8, 34.5, 0)),  # 11
    Part.LineSegment(V(-141.8, 34.5, 0), V(-174.8, 0, 0)),  # 12
    Part.LineSegment(V(-174.8, 0, 0), V(-174.8, -4, 0)),  # 13
], False)
sketch4.addConstraint([
    Sketcher.Constraint("Tangent", 0, 2, 1, 1),
    Sketcher.Constraint("Coincident", 1, 2, 2, 1),
    Sketcher.Constraint("Coincident", 2, 2, 3, 1),
    Sketcher.Constraint("Coincident", 3, 2, 4, 1),
    Sketcher.Constraint("Coincident", 4, 2, 5, 1),
    Sketcher.Constraint("Coincident", 5, 2, 6, 1),
    Sketcher.Constraint("Coincident", 6, 2, 7, 1),
    Sketcher.Constraint("Coincident", 7, 2, 8, 1),
    Sketcher.Constraint("Coincident", 8, 2, 9, 1),
    Sketcher.Constraint("Coincident", 9, 2, 10, 1),
    Sketcher.Constraint("Coincident", 10, 2, 11, 1),
    Sketcher.Constraint("Coincident", 11, 2, 12, 1),
    Sketcher.Constraint("Coincident", 12, 2, 13, 1),
    Sketcher.Constraint("Tangent", 13, 2, 0, 1),
    Sketcher.Constraint("Vertical", 1),
    Sketcher.Constraint("Horizontal", 3),
    Sketcher.Constraint("Vertical", 4),
    Sketcher.Constraint("Horizontal", 5),
    Sketcher.Constraint("Vertical", 6),
    Sketcher.Constraint("Horizontal", 7),
    Sketcher.Constraint("Vertical", 8),
    Sketcher.Constraint("Horizontal", 9),
    Sketcher.Constraint("Vertical", 10),
    Sketcher.Constraint("Horizontal", 11),
    Sketcher.Constraint("Vertical", 13),
    Sketcher.Constraint("PointOnObject", 1, 2, -1),
    Sketcher.Constraint("PointOnObject", 12, 2, -1),
    Sketcher.Constraint("Horizontal", 3, 2, 6, 2),
    Sketcher.Constraint("Horizontal", 5, 2, 8, 2),
    Sketcher.Constraint("Horizontal", 7, 2, 10, 2),
    Sketcher.Constraint("Equal", 3, 5),
    Sketcher.Constraint("Equal", 5, 9),
    Sketcher.Constraint("Equal", 9, 11),
    Sketcher.Constraint("Equal", 11, 1),
    Sketcher.Constraint("Equal", 2, 12),
    Sketcher.Constraint("Radius", 0, 45.0),
    Sketcher.Constraint("DistanceX", 3, 2, 3, 1, 4.0),
    Sketcher.Constraint("DistanceX", 7, 2, 7, 1, 8.0),
    Sketcher.Constraint("DistanceY", -1, 1, 4, 2, 17.586401),
    Sketcher.Constraint("DistanceY", 4, 2, 4, 1, 16.871912),
    Sketcher.Constraint("DistanceX", 0, 3, -1, 1, 129.750162),
])
pad4 = body4.newObject("PartDesign::Pad", "Pad003")
pad4.Profile = sketch4
pad4.Length = 4

doc.recompute()
